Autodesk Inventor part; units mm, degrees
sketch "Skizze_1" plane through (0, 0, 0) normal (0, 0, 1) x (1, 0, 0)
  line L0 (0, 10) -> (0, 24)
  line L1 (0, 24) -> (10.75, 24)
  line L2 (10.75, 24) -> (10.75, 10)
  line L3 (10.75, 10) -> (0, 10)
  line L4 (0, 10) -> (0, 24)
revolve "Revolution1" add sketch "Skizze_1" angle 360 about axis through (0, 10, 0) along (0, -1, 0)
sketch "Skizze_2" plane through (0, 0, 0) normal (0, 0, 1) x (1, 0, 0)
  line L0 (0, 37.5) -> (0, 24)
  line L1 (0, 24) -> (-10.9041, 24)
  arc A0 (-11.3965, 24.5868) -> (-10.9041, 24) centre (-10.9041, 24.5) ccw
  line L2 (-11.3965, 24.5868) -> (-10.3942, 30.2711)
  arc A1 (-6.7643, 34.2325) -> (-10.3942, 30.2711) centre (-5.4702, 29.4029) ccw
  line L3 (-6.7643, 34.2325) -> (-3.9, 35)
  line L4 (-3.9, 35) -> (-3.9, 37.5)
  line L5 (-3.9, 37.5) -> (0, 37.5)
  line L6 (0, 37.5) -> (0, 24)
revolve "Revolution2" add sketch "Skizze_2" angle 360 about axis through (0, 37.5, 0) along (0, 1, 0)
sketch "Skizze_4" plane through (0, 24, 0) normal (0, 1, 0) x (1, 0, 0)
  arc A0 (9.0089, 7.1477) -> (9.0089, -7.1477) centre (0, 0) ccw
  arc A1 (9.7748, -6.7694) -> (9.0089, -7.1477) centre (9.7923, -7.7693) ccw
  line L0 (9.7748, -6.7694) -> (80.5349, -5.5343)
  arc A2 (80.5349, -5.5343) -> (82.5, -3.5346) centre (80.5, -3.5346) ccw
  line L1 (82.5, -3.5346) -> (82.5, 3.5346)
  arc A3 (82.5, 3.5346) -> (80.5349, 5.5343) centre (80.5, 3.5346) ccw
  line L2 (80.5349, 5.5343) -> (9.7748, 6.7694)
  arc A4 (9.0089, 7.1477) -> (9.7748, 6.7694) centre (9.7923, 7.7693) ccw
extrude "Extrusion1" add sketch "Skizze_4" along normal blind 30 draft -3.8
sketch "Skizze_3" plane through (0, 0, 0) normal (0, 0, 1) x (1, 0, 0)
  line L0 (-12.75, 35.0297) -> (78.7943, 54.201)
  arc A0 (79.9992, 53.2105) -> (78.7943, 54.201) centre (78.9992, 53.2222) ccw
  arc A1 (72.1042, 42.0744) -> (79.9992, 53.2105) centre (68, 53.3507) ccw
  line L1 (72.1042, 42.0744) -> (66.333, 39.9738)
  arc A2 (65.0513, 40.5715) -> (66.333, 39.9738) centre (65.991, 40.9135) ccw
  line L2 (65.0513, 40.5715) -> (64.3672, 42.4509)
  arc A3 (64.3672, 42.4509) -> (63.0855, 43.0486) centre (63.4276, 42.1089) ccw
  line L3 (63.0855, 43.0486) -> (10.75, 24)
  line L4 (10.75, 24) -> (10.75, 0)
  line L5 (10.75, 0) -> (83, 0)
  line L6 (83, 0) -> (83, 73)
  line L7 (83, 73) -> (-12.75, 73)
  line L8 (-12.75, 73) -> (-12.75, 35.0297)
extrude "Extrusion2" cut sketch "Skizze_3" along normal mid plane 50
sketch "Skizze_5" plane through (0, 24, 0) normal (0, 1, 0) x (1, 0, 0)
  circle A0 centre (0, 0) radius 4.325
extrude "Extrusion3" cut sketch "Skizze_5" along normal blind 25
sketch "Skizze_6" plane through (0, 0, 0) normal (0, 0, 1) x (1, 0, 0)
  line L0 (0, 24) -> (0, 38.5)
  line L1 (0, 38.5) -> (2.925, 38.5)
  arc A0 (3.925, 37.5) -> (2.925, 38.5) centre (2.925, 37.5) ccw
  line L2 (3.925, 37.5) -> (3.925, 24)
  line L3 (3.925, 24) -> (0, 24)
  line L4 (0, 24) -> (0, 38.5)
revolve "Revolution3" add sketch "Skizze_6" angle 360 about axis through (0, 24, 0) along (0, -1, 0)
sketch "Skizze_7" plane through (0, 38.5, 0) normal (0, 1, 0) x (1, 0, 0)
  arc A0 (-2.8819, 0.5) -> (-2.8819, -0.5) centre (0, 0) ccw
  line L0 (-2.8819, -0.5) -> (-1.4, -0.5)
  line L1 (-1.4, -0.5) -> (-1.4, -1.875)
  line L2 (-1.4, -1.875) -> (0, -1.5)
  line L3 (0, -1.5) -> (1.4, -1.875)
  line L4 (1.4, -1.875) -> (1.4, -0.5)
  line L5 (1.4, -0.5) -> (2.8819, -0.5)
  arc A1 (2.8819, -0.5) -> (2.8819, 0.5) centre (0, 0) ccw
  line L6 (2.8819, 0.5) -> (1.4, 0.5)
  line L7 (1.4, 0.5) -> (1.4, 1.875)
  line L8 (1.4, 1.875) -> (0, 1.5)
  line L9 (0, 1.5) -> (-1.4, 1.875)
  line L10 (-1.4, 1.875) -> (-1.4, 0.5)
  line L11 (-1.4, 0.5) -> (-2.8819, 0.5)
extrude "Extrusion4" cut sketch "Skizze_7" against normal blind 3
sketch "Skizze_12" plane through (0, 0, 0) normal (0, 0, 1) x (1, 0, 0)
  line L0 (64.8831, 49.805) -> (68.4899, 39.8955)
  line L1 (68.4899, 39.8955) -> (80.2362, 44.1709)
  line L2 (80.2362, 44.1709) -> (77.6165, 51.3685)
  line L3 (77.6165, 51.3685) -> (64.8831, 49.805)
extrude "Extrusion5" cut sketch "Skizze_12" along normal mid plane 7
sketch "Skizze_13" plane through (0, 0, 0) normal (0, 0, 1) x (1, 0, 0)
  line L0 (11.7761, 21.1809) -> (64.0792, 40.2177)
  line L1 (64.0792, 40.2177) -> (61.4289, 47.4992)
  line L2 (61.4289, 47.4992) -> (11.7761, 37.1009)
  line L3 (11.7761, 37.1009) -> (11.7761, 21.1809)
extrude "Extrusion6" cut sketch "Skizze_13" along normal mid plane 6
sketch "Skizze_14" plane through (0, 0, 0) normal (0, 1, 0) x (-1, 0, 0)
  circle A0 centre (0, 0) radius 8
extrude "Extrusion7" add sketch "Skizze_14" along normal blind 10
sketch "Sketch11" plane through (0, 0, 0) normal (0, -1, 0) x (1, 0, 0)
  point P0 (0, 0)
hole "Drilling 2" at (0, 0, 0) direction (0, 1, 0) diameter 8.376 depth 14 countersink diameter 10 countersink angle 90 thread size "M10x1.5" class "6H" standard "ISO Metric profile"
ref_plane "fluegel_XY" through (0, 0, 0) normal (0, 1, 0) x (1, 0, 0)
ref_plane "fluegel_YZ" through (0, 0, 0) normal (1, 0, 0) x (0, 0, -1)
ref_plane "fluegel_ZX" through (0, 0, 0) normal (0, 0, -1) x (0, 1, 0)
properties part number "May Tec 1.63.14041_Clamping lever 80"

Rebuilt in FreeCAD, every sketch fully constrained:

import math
import FreeCAD as App
import Part
import Sketcher

V = App.Vector
Q = App.Units.Quantity

doc = App.newDocument("Part")
body = doc.addObject("PartDesign::Body", "Body")

# Sketch on XY plane
sketch1 = body.newObject("Sketcher::SketchObject", "Sketch")
sketch1.AttachmentSupport = (doc.getObject("XY_Plane"), [""])
sketch1.MapMode = "FlatFace"
sketch1.addGeometry([
    Part.LineSegment(V(0, 24, 0), V(0, 10, 0)),
    Part.LineSegment(V(0, 10, 0), V(11, 10, 0)),
    Part.LineSegment(V(11, 10, 0), V(11, 24, 0)),
    Part.LineSegment(V(11, 24, 0), V(0, 24, 0)),
], False)
sketch1.addConstraint([
    Sketcher.Constraint("Coincident", 0, 2, 1, 1),
    Sketcher.Constraint("Coincident", 1, 2, 2, 1),
    Sketcher.Constraint("Coincident", 2, 2, 3, 1),
    Sketcher.Constraint("Coincident", 3, 2, 0, 1),
    Sketcher.Constraint("Vertical", 0),
    Sketcher.Constraint("Horizontal", 1),
    Sketcher.Constraint("Vertical", 2),
    Sketcher.Constraint("Horizontal", 3),
    Sketcher.Constraint("PointOnObject", 0, 2, -2),
    Sketcher.Constraint("DistanceY", 0, 2, 0, 1, 14.0),
    Sketcher.Constraint("DistanceY", -1, 1, 0, 2, 10.0),
    Sketcher.Constraint("DistanceX", 1, 1, 1, 2, 10.75),
])
revolution = body.newObject("PartDesign::Revolution", "Revolution")
revolution.Profile = sketch1
revolution.ReferenceAxis = (sketch1, ["V_Axis"])
revolution.Angle = 360

# Sketch on XY plane
sketch2 = body.newObject("Sketcher::SketchObject", "Sketch001")
sketch2.AttachmentSupport = (doc.getObject("XY_Plane"), [""])
sketch2.MapMode = "FlatFace"
sketch2.addGeometry([
    Part.LineSegment(V(0, 24, 0), V(0, 37.5, 0)),  # 0
    Part.LineSegment(V(0, 37.5, 0), V(-3.9, 37.5, 0)),  # 1
    Part.LineSegment(V(-3.9, 37.5, 0), V(-3.9, 35, 0)),  # 2
    Part.LineSegment(V(-3.9, 35, 0), V(-6.76, 34.23, 0)),  # 3
    Part.ArcOfCircle(Part.Circle(V(-5.47, 29.4, 0), V(0, 0, 1), 5), math.radians(105), math.radians(170)),  # 4
    Part.LineSegment(V(-10.39, 30.27, 0), V(-11.4, 24.59, 0)),  # 5
    Part.ArcOfCircle(Part.Circle(V(-10.9, 24.5, 0), V(0, 0, 1), 0.5), math.radians(170), math.radians(270)),  # 6
    Part.LineSegment(V(-10.9, 24, 0), V(0, 24, 0)),  # 7
], False)
sketch2.addConstraint([
    Sketcher.Constraint("Coincident", 0, 2, 1, 1),
    Sketcher.Constraint("Coincident", 1, 2, 2, 1),
    Sketcher.Constraint("Coincident", 2, 2, 3, 1),
    Sketcher.Constraint("Tangent", 3, 2, 4, 1),
    Sketcher.Constraint("Tangent", 4, 2, 5, 1),
    Sketcher.Constraint("Tangent", 5, 2, 6, 1),
    Sketcher.Constraint("Tangent", 6, 2, 7, 1),
    Sketcher.Constraint("Coincident", 7, 2, 0, 1),
    Sketcher.Constraint("Vertical", 0),
    Sketcher.Constraint("Horizontal", 1),
    Sketcher.Constraint("Vertical", 2),
    Sketcher.Constraint("Horizontal", 7),
    Sketcher.Constraint("PointOnObject", 0, 2, -2),
    Sketcher.Constraint("Radius", 4, 5.0),
    Sketcher.Constraint("Radius", 6, 0.5),
    Sketcher.Constraint("Angle", 3, Q("-164.9998 deg")),
    Sketcher.Constraint("Angle", 5, Q("-100 deg")),
    Sketcher.Constraint("DistanceX", 1, 2, 1, 1, 3.9),
    Sketcher.Constraint("DistanceY", 0, 1, 0, 2, 13.5),
    Sketcher.Constraint("DistanceY", 2, 2, 2, 1, 2.5),
    Sketcher.Constraint("DistanceY", -1, 1, 2, 2, 35.0),
    Sketcher.Constraint("DistanceX", 7, 1, 7, 2, 10.904),
])
revolution2 = body.newObject("PartDesign::Revolution", "Revolution001")
revolution2.Profile = sketch2
revolution2.ReferenceAxis = (sketch2, ["V_Axis"])
revolution2.Angle = 360

# Sketch on XZ plane
sketch3 = body.newObject("Sketcher::SketchObject", "Sketch002")
sketch3.AttachmentSupport = (doc.getObject("XZ_Plane"), [""])
sketch3.MapMode = "FlatFace"
sketch3.AttachmentOffset = App.Placement(V(0, 0, -24), App.Rotation())
sketch3.addGeometry([
    Part.ArcOfCircle(Part.Circle(V(9.8, -7.8, 0), V(0, 0, 1), 1), math.radians(91), math.radians(142)),  # 0
    Part.ArcOfCircle(Part.Circle(V(0, 0, 0), V(0, 0, 1), 11.5), math.radians(38), math.radians(322)),  # 1
    Part.ArcOfCircle(Part.Circle(V(9.8, 7.8, 0), V(0, 0, 1), 1), math.radians(-142), math.radians(-91)),  # 2
    Part.LineSegment(V(9.8, 6.8, 0), V(80.5, 5.5, 0)),  # 3
    Part.ArcOfCircle(Part.Circle(V(80.5, 3.5, 0), V(0, 0, 1), 2), math.radians(0), math.radians(89)),  # 4
    Part.LineSegment(V(82.5, 3.5, 0), V(82.5, -3.5, 0)),  # 5
    Part.ArcOfCircle(Part.Circle(V(80.5, -3.5, 0), V(0, 0, 1), 2), math.radians(-89), math.radians(0)),  # 6
    Part.LineSegment(V(80.5, -5.5, 0), V(9.8, -6.8, 0)),  # 7
], False)
sketch3.addConstraint([
    Sketcher.Constraint("Tangent", 0, 2, 1, 2),
    Sketcher.Constraint("Tangent", 1, 1, 2, 1),
    Sketcher.Constraint("Tangent", 2, 2, 3, 1),
    Sketcher.Constraint("Tangent", 3, 2, 4, 2),
    Sketcher.Constraint("Tangent", 4, 1, 5, 1),
    Sketcher.Constraint("Tangent", 5, 2, 6, 2),
    Sketcher.Constraint("Tangent", 6, 1, 7, 1),
    Sketcher.Constraint("Tangent", 7, 2, 0, 1),
    Sketcher.Constraint("Vertical", 5),
    Sketcher.Constraint("Coincident", 1, 3, -1, 1),
    Sketcher.Constraint("Equal", 0, 2),
    Sketcher.Constraint("Equal", 4, 6),
    Sketcher.Constraint("Symmetric", 3, 2, 6, 1, -1),
    Sketcher.Constraint("Radius", 0, 1.0),
    Sketcher.Constraint("Radius", 4, 2.0),
    Sketcher.Constraint("Radius", 1, 11.5),
    Sketcher.Constraint("Angle", 3, Q("-1 deg")),
    Sketcher.Constraint("DistanceX", -1, 1, 4, 3, 80.5),
    Sketcher.Constraint("DistanceX", 2, 2, 3, 2, 70.76),
])
pad1 = body.newObject("PartDesign::Pad", "Pad")
pad1.Profile = sketch3
pad1.Length = 30
pad1.Reversed = True
pad1.TaperAngle = -3.8

# Sketch on XY plane
sketch4 = body.newObject("Sketcher::SketchObject", "Sketch003")
sketch4.AttachmentSupport = (doc.getObject("XY_Plane"), [""])
sketch4.MapMode = "FlatFace"
sketch4.addGeometry([
    Part.LineSegment(V(-12.8, 73, 0), V(-12.8, 35, 0)),  # 0
    Part.LineSegment(V(-12.8, 35, 0), V(78.8, 54.2, 0)),  # 1
    Part.ArcOfCircle(Part.Circle(V(79, 53.2, 0), V(0, 0, 1), 1), math.radians(-1), math.radians(102)),  # 2
    Part.ArcOfCircle(Part.Circle(V(68, 53.4, 0), V(0, 0, 1), 12), math.radians(-70), math.radians(-1)),  # 3
    Part.LineSegment(V(72.1, 42.1, 0), V(66.3, 40, 0)),  # 4
    Part.ArcOfCircle(Part.Circle(V(66, 40.9, 0), V(0, 0, 1), 1), math.radians(-160), math.radians(-70)),  # 5
    Part.LineSegment(V(65.1, 40.6, 0), V(64.4, 42.5, 0)),  # 6
    Part.ArcOfCircle(Part.Circle(V(63.4, 42.1, 0), V(0, 0, 1), 1), math.radians(20), math.radians(110)),  # 7
    Part.LineSegment(V(63.1, 43, 0), V(10.8, 24, 0)),  # 8
    Part.LineSegment(V(10.8, 24, 0), V(10.8, 0, 0)),  # 9
    Part.LineSegment(V(10.8, 0, 0), V(83, 0, 0)),  # 10
    Part.LineSegment(V(83, 0, 0), V(83, 73, 0)),  # 11
    Part.LineSegment(V(83, 73, 0), V(-12.8, 73, 0)),  # 12
], False)
sketch4.addConstraint([
    Sketcher.Constraint("Coincident", 0, 2, 1, 1),
    Sketcher.Constraint("Tangent", 1, 2, 2, 2),
    Sketcher.Constraint("Tangent", 2, 1, 3, 2),
    Sketcher.Constraint("Tangent", 3, 1, 4, 1),
    Sketcher.Constraint("Tangent", 4, 2, 5, 2),
    Sketcher.Constraint("Tangent", 5, 1, 6, 1),
    Sketcher.Constraint("Tangent", 6, 2, 7, 1),
    Sketcher.Constraint("Tangent", 7, 2, 8, 1),
    Sketcher.Constraint("Coincident", 8, 2, 9, 1),
    Sketcher.Constraint("Coincident", 9, 2, 10, 1),
    Sketcher.Constraint("Coincident", 10, 2, 11, 1),
    Sketcher.Constraint("Coincident", 11, 2, 12, 1),
    Sketcher.Constraint("Coincident", 12, 2, 0, 1),
    Sketcher.Constraint("Vertical", 0),
    Sketcher.Constraint("Vertical", 9),
    Sketcher.Constraint("Horizontal", 10),
    Sketcher.Constraint("Vertical", 11),
    Sketcher.Constraint("Horizontal", 12),
    Sketcher.Constraint("Equal", 2, 5),
    Sketcher.Constraint("Equal", 5, 7),
    Sketcher.Constraint("PointOnObject", 9, 2, -1),
    Sketcher.Constraint("Perpendicular", 4, 6),
    Sketcher.Constraint("Perpendicular", 6, 8),
    Sketcher.Constraint("Radius", 2, 1.0),
    Sketcher.Constraint("Radius", 3, 12.0),
    Sketcher.Constraint("DistanceY", 9, 2, 9, 1, 24.0),
    Sketcher.Constraint("DistanceY", 11, 1, 11, 2, 73.0),
    Sketcher.Constraint("Angle", 4, Q("-159.9995 deg")),
    Sketcher.Constraint("Distance", 6, 2.0),
    Sketcher.Constraint("DistanceX", -1, 1, 3, 3, 68.0),
    Sketcher.Constraint("DistanceX", -1, 1, 10, 2, 83.0),
    Sketcher.Constraint("DistanceX", 10, 1, 10, 2, 72.25),
    Sketcher.Constraint("DistanceX", 12, 2, 12, 1, 95.75),
    Sketcher.Constraint("DistanceY", 0, 2, 0, 1, 37.9703),
    Sketcher.Constraint("DistanceX", -1, 1, 5, 3, 65.991),
    Sketcher.Constraint("DistanceY", -1, 1, 1, 2, 54.201),
])
pocket1 = body.newObject("PartDesign::Pocket", "Pocket")
pocket1.Profile = sketch4
pocket1.Length = 50
pocket1.Midplane = True

# Sketch on XZ plane
sketch5 = body.newObject("Sketcher::SketchObject", "Sketch004")
sketch5.AttachmentSupport = (doc.getObject("XZ_Plane"), [""])
sketch5.MapMode = "FlatFace"
sketch5.AttachmentOffset = App.Placement(V(0, 0, -24), App.Rotation())
sketch5.addGeometry(Part.Circle(V(0, 0, 0), V(0, 0, 1), 4.3), False)
sketch5.addConstraint([
    Sketcher.Constraint("Coincident", 0, 3, -1, 1),
    Sketcher.Constraint("Diameter", 0, 8.65),
])
pocket2 = body.newObject("PartDesign::Pocket", "Pocket001")
pocket2.Profile = sketch5
pocket2.Length = 25

# Sketch on XY plane
sketch6 = body.newObject("Sketcher::SketchObject", "Sketch005")
sketch6.AttachmentSupport = (doc.getObject("XY_Plane"), [""])
sketch6.MapMode = "FlatFace"
sketch6.addGeometry([
    Part.LineSegment(V(0, 38.5, 0), V(0, 24, 0)),  # 0
    Part.LineSegment(V(0, 24, 0), V(3.9, 24, 0)),  # 1
    Part.LineSegment(V(3.9, 24, 0), V(3.9, 37.5, 0)),  # 2
    Part.ArcOfCircle(Part.Circle(V(2.9, 37.5, 0), V(0, 0, 1), 1), math.radians(0), math.radians(90)),  # 3
    Part.LineSegment(V(2.9, 38.5, 0), V(0, 38.5, 0)),  # 4
], False)
sketch6.addConstraint([
    Sketcher.Constraint("Coincident", 0, 2, 1, 1),
    Sketcher.Constraint("Coincident", 1, 2, 2, 1),
    Sketcher.Constraint("Tangent", 2, 2, 3, 1),
    Sketcher.Constraint("Tangent", 3, 2, 4, 1),
    Sketcher.Constraint("Coincident", 4, 2, 0, 1),
    Sketcher.Constraint("Vertical", 0),
    Sketcher.Constraint("Horizontal", 1),
    Sketcher.Constraint("Vertical", 2),
    Sketcher.Constraint("Horizontal", 4),
    Sketcher.Constraint("PointOnObject", 0, 2, -2),
    Sketcher.Constraint("Radius", 3, 1.0),
    Sketcher.Constraint("DistanceY", 0, 2, 0, 1, 14.5),
    Sketcher.Constraint("DistanceY", -1, 1, 0, 2, 24.0),
    Sketcher.Constraint("DistanceX", 1, 1, 1, 2, 3.925),
])
revolution3 = body.newObject("PartDesign::Revolution", "Revolution002")
revolution3.Profile = sketch6
revolution3.ReferenceAxis = (sketch6, ["V_Axis"])
revolution3.Angle = 360

# Sketch on XZ plane
sketch7 = body.newObject("Sketcher::SketchObject", "Sketch006")
sketch7.AttachmentSupport = (doc.getObject("XZ_Plane"), [""])
sketch7.MapMode = "FlatFace"
sketch7.AttachmentOffset = App.Placement(V(0, 0, -38.5), App.Rotation())
sketch7.addGeometry([
    Part.LineSegment(V(-1.4, -0.5, 0), V(-2.9, -0.5, 0)),  # 0
    Part.ArcOfCircle(Part.Circle(V(0, 0, 0), V(0, 0, 1), 2.9), math.radians(170.16), math.radians(189.84)),  # 1
    Part.LineSegment(V(-2.9, 0.5, 0), V(-1.4, 0.5, 0)),  # 2
    Part.LineSegment(V(-1.4, 0.5, 0), V(-1.4, 1.9, 0)),  # 3
    Part.LineSegment(V(-1.4, 1.9, 0), V(0, 1.5, 0)),  # 4
    Part.LineSegment(V(0, 1.5, 0), V(1.4, 1.9, 0)),  # 5
    Part.LineSegment(V(1.4, 1.9, 0), V(1.4, 0.5, 0)),  # 6
    Part.LineSegment(V(1.4, 0.5, 0), V(2.9, 0.5, 0)),  # 7
    Part.ArcOfCircle(Part.Circle(V(0, 0, 0), V(0, 0, 1), 2.9), math.radians(-9.84), math.radians(9.84)),  # 8
    Part.LineSegment(V(2.9, -0.5, 0), V(1.4, -0.5, 0)),  # 9
    Part.LineSegment(V(1.4, -0.5, 0), V(1.4, -1.9, 0)),  # 10
    Part.LineSegment(V(1.4, -1.9, 0), V(0, -1.5, 0)),  # 11
    Part.LineSegment(V(0, -1.5, 0), V(-1.4, -1.9, 0)),  # 12
    Part.LineSegment(V(-1.4, -1.9, 0), V(-1.4, -0.5, 0)),  # 13
], False)
sketch7.addConstraint([
    Sketcher.Constraint("Coincident", 0, 2, 1, 2),
    Sketcher.Constraint("Coincident", 1, 1, 2, 1),
    Sketcher.Constraint("Coincident", 2, 2, 3, 1),
    Sketcher.Constraint("Coincident", 3, 2, 4, 1),
    Sketcher.Constraint("Coincident", 4, 2, 5, 1),
    Sketcher.Constraint("Coincident", 5, 2, 6, 1),
    Sketcher.Constraint("Coincident", 6, 2, 7, 1),
    Sketcher.Constraint("Coincident", 7, 2, 8, 2),
    Sketcher.Constraint("Coincident", 8, 1, 9, 1),
    Sketcher.Constraint("Coincident", 9, 2, 10, 1),
    Sketcher.Constraint("Coincident", 10, 2, 11, 1),
    Sketcher.Constraint("Coincident", 11, 2, 12, 1),
    Sketcher.Constraint("Coincident", 12, 2, 13, 1),
    Sketcher.Constraint("Coincident", 13, 2, 0, 1),
    Sketcher.Constraint("Horizontal", 0),
    Sketcher.Constraint("Horizontal", 2),
    Sketcher.Constraint("Vertical", 3),
    Sketcher.Constraint("Vertical", 6),
    Sketcher.Constraint("Horizontal", 7),
    Sketcher.Constraint("Horizontal", 9),
    Sketcher.Constraint("Vertical", 10),
    Sketcher.Constraint("Vertical", 13),
    Sketcher.Constraint("Coincident", 1, 3, -1, 1),
    Sketcher.Constraint("Coincident", 8, 3, -1, 1),
    Sketcher.Constraint("Equal", 1, 8),
    Sketcher.Constraint("Symmetric", 2, 2, 9, 2, -1, 1),
    Sketcher.Constraint("Symmetric", 4, 2, 11, 2, -1, 1),
    Sketcher.Constraint("Symmetric", 5, 2, 12, 2, -1, 1),
    Sketcher.Constraint("Symmetric", 3, 2, 5, 2, -2),
    Sketcher.Constraint("PointOnObject", 4, 2, -2),
    Sketcher.Constraint("Parallel", 4, 11),
    Sketcher.Constraint("Horizontal", 2, 2, 6, 2),
    Sketcher.Constraint("Horizontal", 0, 2, 8, 1),
    Sketcher.Constraint("Radius", 1, 2.925),
    Sketcher.Constraint("DistanceY", 0, 2, 1, 1, 1.0),
    Sketcher.Constraint("DistanceY", 2, 2, 4, 2, 1.0),
    Sketcher.Constraint("DistanceX", 2, 2, -1, 1, 1.4),
    Sketcher.Constraint("DistanceY", 3, 1, 3, 2, 1.375),
])
pocket3 = body.newObject("PartDesign::Pocket", "Pocket002")
pocket3.Profile = sketch7
pocket3.Length = 3
pocket3.Reversed = True

# Sketch on XY plane
sketch8 = body.newObject("Sketcher::SketchObject", "Sketch007")
sketch8.AttachmentSupport = (doc.getObject("XY_Plane"), [""])
sketch8.MapMode = "FlatFace"
sketch8.addGeometry([
    Part.LineSegment(V(78, 51, 0), V(65, 50, 0)),
    Part.LineSegment(V(65, 50, 0), V(68, 40, 0)),
    Part.LineSegment(V(68, 40, 0), V(80, 44, 0)),
    Part.LineSegment(V(80, 44, 0), V(78, 51, 0)),
], False)
sketch8.addConstraint([
    Sketcher.Constraint("Coincident", 0, 2, 1, 1),
    Sketcher.Constraint("Coincident", 1, 2, 2, 1),
    Sketcher.Constraint("Coincident", 2, 2, 3, 1),
    Sketcher.Constraint("Coincident", 3, 2, 0, 1),
    Sketcher.Constraint("Perpendicular", 1, 2),
    Sketcher.Constraint("Perpendicular", 2, 3),
    Sketcher.Constraint("Angle", 0, Q("-172.9998 deg")),
    Sketcher.Constraint("Angle", 1, Q("-69.9998 deg")),
    Sketcher.Constraint("DistanceX", -1, 1, 1, 2, 68.49),
    Sketcher.Constraint("Distance", 0, 12.829),
    Sketcher.Constraint("DistanceX", -1, 1, 0, 2, 64.883),
    Sketcher.Constraint("DistanceY", -1, 1, 0, 2, 49.805),
])
pocket4 = body.newObject("PartDesign::Pocket", "Pocket003")
pocket4.Profile = sketch8
pocket4.Length = 7
pocket4.Midplane = True

# Sketch on XY plane
sketch9 = body.newObject("Sketcher::SketchObject", "Sketch008")
sketch9.AttachmentSupport = (doc.getObject("XY_Plane"), [""])
sketch9.MapMode = "FlatFace"
sketch9.addGeometry([
    Part.LineSegment(V(12, 37, 0), V(12, 21, 0)),
    Part.LineSegment(V(12, 21, 0), V(64, 40, 0)),
    Part.LineSegment(V(64, 40, 0), V(61, 47, 0)),
    Part.LineSegment(V(61, 47, 0), V(12, 37, 0)),
], False)
sketch9.addConstraint([
    Sketcher.Constraint("Coincident", 0, 2, 1, 1),
    Sketcher.Constraint("Coincident", 1, 2, 2, 1),
    Sketcher.Constraint("Coincident", 2, 2, 3, 1),
    Sketcher.Constraint("Coincident", 3, 2, 0, 1),
    Sketcher.Constraint("Vertical", 0),
    Sketcher.Constraint("Perpendicular", 1, 2),
    Sketcher.Constraint("Angle", 1, Q("20 deg")),
    Sketcher.Constraint("DistanceY", 0, 2, 0, 1, 15.92),
    Sketcher.Constraint("Distance", 3, 50.73),
    Sketcher.Constraint("DistanceX", -1, 1, 0, 2, 11.776),
    Sketcher.Constraint("DistanceY", -1, 1, 0, 2, 21.181),
    Sketcher.Constraint("DistanceX", -1, 1, 2, 2, 61.429),
])
pocket5 = body.newObject("PartDesign::Pocket", "Pocket004")
pocket5.Profile = sketch9
pocket5.Length = 6
pocket5.Midplane = True

# Sketch on XZ plane
sketch10 = body.newObject("Sketcher::SketchObject", "Sketch009")
sketch10.AttachmentSupport = (doc.getObject("XZ_Plane"), [""])
sketch10.MapMode = "FlatFace"
sketch10.addGeometry(Part.Circle(V(0, 0, 0), V(0, 0, 1), 8), False)
sketch10.addConstraint([
    Sketcher.Constraint("Coincident", 0, 3, -1, 1),
    Sketcher.Constraint("Diameter", 0, 16.0),
])
pad2 = body.newObject("PartDesign::Pad", "Pad001")
pad2.Profile = sketch10
pad2.Length = 10
pad2.Reversed = True

# Sketch on XZ plane
sketch11 = body.newObject("Sketcher::SketchObject", "Sketch010")
sketch11.AttachmentSupport = (doc.getObject("XZ_Plane"), [""])
sketch11.MapMode = "FlatFace"
sketch11.addGeometry(Part.Circle(V(0, 0, 0), V(0, 0, 1), 4.2), False)
sketch11.addConstraint([
    Sketcher.Constraint("Coincident", 0, 3, -1, 1),
    Sketcher.Constraint("Diameter", 0, 8.376),
])
doc.recompute()
hole = body.newObject("PartDesign::Hole", "Hole")
hole.Profile = sketch11
hole.ThreadType = "None"
hole.Diameter = 8.376
hole.DepthType = "Dimension"
hole.Depth = 14
hole.DrillPoint = "Flat"
hole.HoleCutType = "Countersink"
hole.HoleCutDiameter = 10
hole.HoleCutCountersinkAngle = 90

doc.recompute()
